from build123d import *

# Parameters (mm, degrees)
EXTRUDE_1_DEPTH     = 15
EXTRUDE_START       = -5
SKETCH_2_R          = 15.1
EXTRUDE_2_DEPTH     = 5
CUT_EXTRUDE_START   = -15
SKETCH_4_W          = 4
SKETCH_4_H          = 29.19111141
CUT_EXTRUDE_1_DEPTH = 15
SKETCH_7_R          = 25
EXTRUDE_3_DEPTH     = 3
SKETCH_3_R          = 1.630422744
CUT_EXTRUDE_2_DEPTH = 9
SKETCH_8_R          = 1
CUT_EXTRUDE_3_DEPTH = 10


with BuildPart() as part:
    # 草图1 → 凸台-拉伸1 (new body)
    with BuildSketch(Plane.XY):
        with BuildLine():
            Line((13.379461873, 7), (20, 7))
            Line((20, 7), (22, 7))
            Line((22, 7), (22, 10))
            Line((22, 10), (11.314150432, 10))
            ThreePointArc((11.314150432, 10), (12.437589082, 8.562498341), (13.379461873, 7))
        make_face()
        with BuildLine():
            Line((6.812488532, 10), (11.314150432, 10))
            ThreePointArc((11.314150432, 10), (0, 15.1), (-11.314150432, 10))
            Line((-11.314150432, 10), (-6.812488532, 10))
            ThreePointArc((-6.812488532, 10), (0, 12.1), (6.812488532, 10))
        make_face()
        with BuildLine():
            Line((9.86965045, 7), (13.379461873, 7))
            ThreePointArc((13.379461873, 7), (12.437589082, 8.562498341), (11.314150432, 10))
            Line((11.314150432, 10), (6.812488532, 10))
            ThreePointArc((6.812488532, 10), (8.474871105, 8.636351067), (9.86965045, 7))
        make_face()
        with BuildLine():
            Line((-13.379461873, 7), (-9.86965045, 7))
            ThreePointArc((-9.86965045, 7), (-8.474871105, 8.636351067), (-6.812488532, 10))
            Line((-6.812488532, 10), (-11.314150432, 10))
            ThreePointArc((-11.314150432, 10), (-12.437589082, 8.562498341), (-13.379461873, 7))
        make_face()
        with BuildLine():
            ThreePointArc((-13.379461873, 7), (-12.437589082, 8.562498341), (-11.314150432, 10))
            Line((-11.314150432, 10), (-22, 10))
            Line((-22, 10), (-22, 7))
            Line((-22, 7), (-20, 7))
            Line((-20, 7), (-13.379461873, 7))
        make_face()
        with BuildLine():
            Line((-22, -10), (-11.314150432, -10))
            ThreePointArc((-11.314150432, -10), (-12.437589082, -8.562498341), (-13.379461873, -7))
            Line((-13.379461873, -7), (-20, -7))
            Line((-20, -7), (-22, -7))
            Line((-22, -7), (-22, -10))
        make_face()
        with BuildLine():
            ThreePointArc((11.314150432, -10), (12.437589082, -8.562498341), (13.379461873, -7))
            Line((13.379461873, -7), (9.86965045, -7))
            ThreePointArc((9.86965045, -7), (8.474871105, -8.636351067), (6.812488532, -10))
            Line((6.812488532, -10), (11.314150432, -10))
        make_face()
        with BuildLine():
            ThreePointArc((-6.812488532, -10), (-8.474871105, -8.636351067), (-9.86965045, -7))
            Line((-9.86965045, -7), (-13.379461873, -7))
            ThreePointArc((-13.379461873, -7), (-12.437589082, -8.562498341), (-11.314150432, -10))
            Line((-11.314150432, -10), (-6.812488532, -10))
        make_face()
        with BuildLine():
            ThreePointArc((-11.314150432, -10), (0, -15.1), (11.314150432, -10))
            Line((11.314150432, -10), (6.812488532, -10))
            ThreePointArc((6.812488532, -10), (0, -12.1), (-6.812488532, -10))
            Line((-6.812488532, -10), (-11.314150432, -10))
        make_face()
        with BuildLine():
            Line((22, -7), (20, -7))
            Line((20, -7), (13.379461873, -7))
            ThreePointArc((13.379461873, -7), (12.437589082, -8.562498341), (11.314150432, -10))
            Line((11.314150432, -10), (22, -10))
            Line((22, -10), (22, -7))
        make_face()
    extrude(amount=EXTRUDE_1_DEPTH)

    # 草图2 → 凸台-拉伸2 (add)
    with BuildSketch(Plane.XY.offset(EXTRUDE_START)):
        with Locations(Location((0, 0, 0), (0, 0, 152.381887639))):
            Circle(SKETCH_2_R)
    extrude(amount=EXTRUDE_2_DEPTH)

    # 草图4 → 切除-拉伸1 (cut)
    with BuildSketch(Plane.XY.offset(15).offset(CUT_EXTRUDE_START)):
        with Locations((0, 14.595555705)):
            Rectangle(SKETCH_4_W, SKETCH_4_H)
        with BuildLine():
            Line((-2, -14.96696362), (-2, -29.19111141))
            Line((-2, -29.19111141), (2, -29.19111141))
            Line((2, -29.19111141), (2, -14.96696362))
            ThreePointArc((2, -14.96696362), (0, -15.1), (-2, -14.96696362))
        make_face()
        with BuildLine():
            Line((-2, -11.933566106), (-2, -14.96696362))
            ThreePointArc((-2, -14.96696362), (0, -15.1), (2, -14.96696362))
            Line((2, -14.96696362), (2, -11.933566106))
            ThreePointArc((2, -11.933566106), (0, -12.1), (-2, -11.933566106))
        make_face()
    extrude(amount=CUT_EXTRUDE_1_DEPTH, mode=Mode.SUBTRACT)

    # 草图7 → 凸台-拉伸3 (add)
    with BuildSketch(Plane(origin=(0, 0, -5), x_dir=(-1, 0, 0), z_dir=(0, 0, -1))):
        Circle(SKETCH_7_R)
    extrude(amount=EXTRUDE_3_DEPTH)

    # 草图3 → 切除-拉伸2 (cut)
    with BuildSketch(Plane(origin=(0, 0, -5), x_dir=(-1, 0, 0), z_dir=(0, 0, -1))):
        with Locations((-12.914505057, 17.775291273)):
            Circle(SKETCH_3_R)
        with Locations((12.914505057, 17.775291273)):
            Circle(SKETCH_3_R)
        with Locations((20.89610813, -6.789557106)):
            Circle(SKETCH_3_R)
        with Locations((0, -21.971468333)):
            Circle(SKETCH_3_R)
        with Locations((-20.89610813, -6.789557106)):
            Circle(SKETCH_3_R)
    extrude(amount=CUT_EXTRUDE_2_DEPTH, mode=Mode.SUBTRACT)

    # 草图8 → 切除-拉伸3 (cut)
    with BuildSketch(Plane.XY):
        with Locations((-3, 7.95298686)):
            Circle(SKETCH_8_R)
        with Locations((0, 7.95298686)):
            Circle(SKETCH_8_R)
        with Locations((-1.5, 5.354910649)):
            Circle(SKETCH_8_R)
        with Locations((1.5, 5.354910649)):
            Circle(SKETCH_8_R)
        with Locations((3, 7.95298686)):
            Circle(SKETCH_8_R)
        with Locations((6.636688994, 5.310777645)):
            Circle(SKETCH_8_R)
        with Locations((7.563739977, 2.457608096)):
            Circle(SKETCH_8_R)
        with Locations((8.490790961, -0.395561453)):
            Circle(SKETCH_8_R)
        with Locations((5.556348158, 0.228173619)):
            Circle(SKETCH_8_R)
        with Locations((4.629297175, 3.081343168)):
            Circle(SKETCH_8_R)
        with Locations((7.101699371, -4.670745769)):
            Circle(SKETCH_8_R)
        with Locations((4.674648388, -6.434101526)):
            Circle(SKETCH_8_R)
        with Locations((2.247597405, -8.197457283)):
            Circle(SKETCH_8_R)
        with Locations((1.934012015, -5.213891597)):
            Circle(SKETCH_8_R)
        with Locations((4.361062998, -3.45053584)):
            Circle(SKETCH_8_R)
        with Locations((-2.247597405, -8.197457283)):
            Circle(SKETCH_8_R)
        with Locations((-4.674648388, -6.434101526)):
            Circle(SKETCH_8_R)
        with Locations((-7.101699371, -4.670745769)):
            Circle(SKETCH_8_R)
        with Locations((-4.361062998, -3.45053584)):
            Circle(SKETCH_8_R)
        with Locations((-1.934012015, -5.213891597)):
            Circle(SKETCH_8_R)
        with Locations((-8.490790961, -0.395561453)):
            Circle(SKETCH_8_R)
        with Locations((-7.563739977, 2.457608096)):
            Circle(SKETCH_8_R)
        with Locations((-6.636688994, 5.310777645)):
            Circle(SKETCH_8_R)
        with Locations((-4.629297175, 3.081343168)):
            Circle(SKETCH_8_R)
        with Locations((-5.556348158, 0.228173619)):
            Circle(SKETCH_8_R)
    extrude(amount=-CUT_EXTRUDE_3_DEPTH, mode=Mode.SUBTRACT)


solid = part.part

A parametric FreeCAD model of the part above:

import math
import FreeCAD as App
import Part
import Sketcher
from FreeCAD import Vector

doc = App.newDocument("Part")
body = doc.addObject("PartDesign::Body", "Body")
body.AllowCompound = True

sketch1 = doc.addObject("Sketcher::SketchObject", "Sketch")
body.addObject(sketch1)
sketch1.AttachmentSupport = (doc.XY_Plane, [""])
sketch1.MapMode = "FlatFace"
sketch1.addGeometry(Part.LineSegment(Vector(9.9, 7, 0), Vector(22, 7, 0)), False)
sketch1.addGeometry(Part.LineSegment(Vector(22, 7, 0), Vector(22, 10, 0)), False)
sketch1.addGeometry(Part.LineSegment(Vector(22, 10, 0), Vector(11.3, 10, 0)), False)
sketch1.addGeometry(Part.ArcOfCircle(Part.Circle(Vector(0, 0, 0), Vector(0, 0, 1), 15.1), math.radians(41), math.radians(139)), False)
sketch1.addGeometry(Part.LineSegment(Vector(-11.3, 10, 0), Vector(-22, 10, 0)), False)
sketch1.addGeometry(Part.LineSegment(Vector(-22, 10, 0), Vector(-22, 7, 0)), False)
sketch1.addGeometry(Part.LineSegment(Vector(-22, 7, 0), Vector(-9.9, 7, 0)), False)
sketch1.addGeometry(Part.ArcOfCircle(Part.Circle(Vector(0, 0, 0), Vector(0, 0, 1), 12.1), math.radians(124), math.radians(145)), False)
sketch1.addGeometry(Part.ArcOfCircle(Part.Circle(Vector(0, 0, 0), Vector(0, 0, 1), 12.1), math.radians(56), math.radians(124)), False)
sketch1.addGeometry(Part.ArcOfCircle(Part.Circle(Vector(0, 0, 0), Vector(0, 0, 1), 12.1), math.radians(35), math.radians(56)), False)
sketch1.addGeometry(Part.LineSegment(Vector(-22, -7, 0), Vector(-22, -10, 0)), False)
sketch1.addGeometry(Part.LineSegment(Vector(-22, -10, 0), Vector(-11.3, -10, 0)), False)
sketch1.addGeometry(Part.ArcOfCircle(Part.Circle(Vector(0, 0, 0), Vector(0, 0, 1), 15.1), math.radians(-139), math.radians(-41)), False)
sketch1.addGeometry(Part.LineSegment(Vector(11.3, -10, 0), Vector(22, -10, 0)), False)
sketch1.addGeometry(Part.LineSegment(Vector(22, -10, 0), Vector(22, -7, 0)), False)
sketch1.addGeometry(Part.LineSegment(Vector(22, -7, 0), Vector(9.9, -7, 0)), False)
sketch1.addGeometry(Part.ArcOfCircle(Part.Circle(Vector(0, 0, 0), Vector(0, 0, 1), 12.1), math.radians(-56), math.radians(-35)), False)
sketch1.addGeometry(Part.ArcOfCircle(Part.Circle(Vector(0, 0, 0), Vector(0, 0, 1), 12.1), math.radians(-124), math.radians(-56)), False)
sketch1.addGeometry(Part.ArcOfCircle(Part.Circle(Vector(0, 0, 0), Vector(0, 0, 1), 12.1), math.radians(-145), math.radians(-124)), False)
sketch1.addGeometry(Part.LineSegment(Vector(-9.9, -7, 0), Vector(-22, -7, 0)), False)
sketch1.addConstraint(Sketcher.Constraint("Coincident", 0, 2, 1, 1))
sketch1.addConstraint(Sketcher.Constraint("Coincident", 1, 2, 2, 1))
sketch1.addConstraint(Sketcher.Constraint("Coincident", 2, 2, 3, 1))
sketch1.addConstraint(Sketcher.Constraint("Coincident", 3, 2, 4, 1))
sketch1.addConstraint(Sketcher.Constraint("Coincident", 4, 2, 5, 1))
sketch1.addConstraint(Sketcher.Constraint("Coincident", 5, 2, 6, 1))
sketch1.addConstraint(Sketcher.Constraint("Coincident", 6, 2, 7, 2))
sketch1.addConstraint(Sketcher.Constraint("Tangent", 7, 1, 8, 2))
sketch1.addConstraint(Sketcher.Constraint("Tangent", 8, 1, 9, 2))
sketch1.addConstraint(Sketcher.Constraint("Coincident", 9, 1, 0, 1))
sketch1.addConstraint(Sketcher.Constraint("Coincident", 10, 2, 11, 1))
sketch1.addConstraint(Sketcher.Constraint("Coincident", 11, 2, 12, 1))
sketch1.addConstraint(Sketcher.Constraint("Coincident", 12, 2, 13, 1))
sketch1.addConstraint(Sketcher.Constraint("Coincident", 13, 2, 14, 1))
sketch1.addConstraint(Sketcher.Constraint("Coincident", 14, 2, 15, 1))
sketch1.addConstraint(Sketcher.Constraint("Coincident", 15, 2, 16, 2))
sketch1.addConstraint(Sketcher.Constraint("Tangent", 16, 1, 17, 2))
sketch1.addConstraint(Sketcher.Constraint("Tangent", 17, 1, 18, 2))
sketch1.addConstraint(Sketcher.Constraint("Coincident", 18, 1, 19, 1))
sketch1.addConstraint(Sketcher.Constraint("Coincident", 19, 2, 10, 1))
sketch1.addConstraint(Sketcher.Constraint("Horizontal", 0))
sketch1.addConstraint(Sketcher.Constraint("Vertical", 1))
sketch1.addConstraint(Sketcher.Constraint("Horizontal", 2))
sketch1.addConstraint(Sketcher.Constraint("Horizontal", 4))
sketch1.addConstraint(Sketcher.Constraint("Vertical", 5))
sketch1.addConstraint(Sketcher.Constraint("Horizontal", 6))
sketch1.addConstraint(Sketcher.Constraint("Vertical", 10))
sketch1.addConstraint(Sketcher.Constraint("Horizontal", 11))
sketch1.addConstraint(Sketcher.Constraint("Horizontal", 13))
sketch1.addConstraint(Sketcher.Constraint("Vertical", 14))
sketch1.addConstraint(Sketcher.Constraint("Horizontal", 15))
sketch1.addConstraint(Sketcher.Constraint("Horizontal", 19))
sketch1.addConstraint(Sketcher.Constraint("Coincident", 3, 3, -1, 1))
sketch1.addConstraint(Sketcher.Constraint("Coincident", 7, 3, -1, 1))
sketch1.addConstraint(Sketcher.Constraint("Coincident", 9, 3, -1, 1))
sketch1.addConstraint(Sketcher.Constraint("Coincident", 12, 3, -1, 1))
sketch1.addConstraint(Sketcher.Constraint("Coincident", 16, 3, -1, 1))
sketch1.addConstraint(Sketcher.Constraint("Coincident", 18, 3, -1, 1))
sketch1.addConstraint(Sketcher.Constraint("Equal", 3, 12))
sketch1.addConstraint(Sketcher.Constraint("Equal", 9, 16))
sketch1.addConstraint(Sketcher.Constraint("Symmetric", 1, 2, 10, 2, -1, 1))
sketch1.addConstraint(Sketcher.Constraint("Symmetric", 4, 2, 13, 2, -1, 1))
sketch1.addConstraint(Sketcher.Constraint("Symmetric", 1, 2, 4, 2, -2))
sketch1.addConstraint(Sketcher.Constraint("Horizontal", 0, 2, 5, 2))
sketch1.addConstraint(Sketcher.Constraint("Horizontal", 4, 2, 7, 1))
sketch1.addConstraint(Sketcher.Constraint("Horizontal", 7, 1, 8, 1))
sketch1.addConstraint(Sketcher.Constraint("Horizontal", 13, 2, 16, 1))
sketch1.addConstraint(Sketcher.Constraint("Horizontal", 16, 1, 17, 1))
sketch1.addConstraint(Sketcher.Constraint("Horizontal", 15, 2, 18, 1))
sketch1.addConstraint(Sketcher.Constraint("Vertical", 9, 1, 15, 2))
sketch1.addConstraint(Sketcher.Constraint("Radius", 3, 15.1))
sketch1.addConstraint(Sketcher.Constraint("Radius", 7, 12.1))
sketch1.addConstraint(Sketcher.Constraint("DistanceY", 1, 1, 1, 2, 3.0))
sketch1.addConstraint(Sketcher.Constraint("DistanceX", -1, 1, 0, 2, 22.0))
sketch1.addConstraint(Sketcher.Constraint("DistanceY", -1, 1, 0, 2, 7.0))
pad1 = doc.addObject("PartDesign::Pad", "Pad")
body.addObject(pad1)
pad1.Profile = sketch1
pad1.Length = 15

sketch2 = doc.addObject("Sketcher::SketchObject", "Sketch001")
body.addObject(sketch2)
sketch2.AttachmentSupport = (doc.XY_Plane, [""])
sketch2.MapMode = "FlatFace"
sketch2.AttachmentOffset = App.Placement(Vector(0, 0, -5), App.Rotation())
sketch2.addGeometry(Part.Circle(Vector(0, 0, 0), Vector(0, 0, 1), 15), False)
sketch2.addConstraint(Sketcher.Constraint("Coincident", 0, 3, -1, 1))
sketch2.addConstraint(Sketcher.Constraint("Diameter", 0, 30.2))
pad2 = doc.addObject("PartDesign::Pad", "Pad001")
body.addObject(pad2)
pad2.Profile = sketch2
pad2.Length = 5

sketch3 = doc.addObject("Sketcher::SketchObject", "Sketch002")
body.addObject(sketch3)
sketch3.AttachmentSupport = (doc.XY_Plane, [""])
sketch3.MapMode = "FlatFace"
sketch3.addGeometry(Part.LineSegment(Vector(-2, 29.2, 0), Vector(-2, 0, 0)), False)
sketch3.addGeometry(Part.LineSegment(Vector(-2, 0, 0), Vector(2, 0, 0)), False)
sketch3.addGeometry(Part.LineSegment(Vector(2, 0, 0), Vector(2, 29.2, 0)), False)
sketch3.addGeometry(Part.LineSegment(Vector(2, 29.2, 0), Vector(-2, 29.2, 0)), False)
sketch3.addGeometry(Part.LineSegment(Vector(-2, -29.2, 0), Vector(2, -29.2, 0)), False)
sketch3.addGeometry(Part.LineSegment(Vector(2, -29.2, 0), Vector(2, -11.9, 0)), False)
sketch3.addGeometry(Part.ArcOfCircle(Part.Circle(Vector(0, 0, 0), Vector(0, 0, 1), 12.1), math.radians(-99.51), math.radians(-80.49)), False)
sketch3.addGeometry(Part.LineSegment(Vector(-2, -11.9, 0), Vector(-2, -29.2, 0)), False)
sketch3.addConstraint(Sketcher.Constraint("Coincident", 0, 2, 1, 1))
sketch3.addConstraint(Sketcher.Constraint("Coincident", 1, 2, 2, 1))
sketch3.addConstraint(Sketcher.Constraint("Coincident", 2, 2, 3, 1))
sketch3.addConstraint(Sketcher.Constraint("Coincident", 3, 2, 0, 1))
sketch3.addConstraint(Sketcher.Constraint("Coincident", 4, 2, 5, 1))
sketch3.addConstraint(Sketcher.Constraint("Coincident", 5, 2, 6, 2))
sketch3.addConstraint(Sketcher.Constraint("Coincident", 6, 1, 7, 1))
sketch3.addConstraint(Sketcher.Constraint("Coincident", 7, 2, 4, 1))
sketch3.addConstraint(Sketcher.Constraint("Vertical", 0))
sketch3.addConstraint(Sketcher.Constraint("Horizontal", 1))
sketch3.addConstraint(Sketcher.Constraint("Vertical", 2))
sketch3.addConstraint(Sketcher.Constraint("Horizontal", 3))
sketch3.addConstraint(Sketcher.Constraint("Horizontal", 4))
sketch3.addConstraint(Sketcher.Constraint("Vertical", 5))
sketch3.addConstraint(Sketcher.Constraint("Vertical", 7))
sketch3.addConstraint(Sketcher.Constraint("Coincident", 6, 3, -1, 1))
sketch3.addConstraint(Sketcher.Constraint("Symmetric", 0, 2, 1, 2, -1, 1))
sketch3.addConstraint(Sketcher.Constraint("Symmetric", 3, 2, 4, 2, -1, 1))
sketch3.addConstraint(Sketcher.Constraint("Horizontal", 5, 2, 6, 1))
sketch3.addConstraint(Sketcher.Constraint("Radius", 6, 12.1))
sketch3.addConstraint(Sketcher.Constraint("DistanceX", 1, 1, 1, 2, 4.0))
sketch3.addConstraint(Sketcher.Constraint("DistanceY", 0, 2, 0, 1, 29.191111))
pocket1 = doc.addObject("PartDesign::Pocket", "Pocket")
body.addObject(pocket1)
pocket1.Profile = sketch3
pocket1.Length = 15
pocket1.Reversed = True

sketch4 = doc.addObject("Sketcher::SketchObject", "Sketch003")
body.addObject(sketch4)
sketch4.AttachmentSupport = (doc.XY_Plane, [""])
sketch4.MapMode = "FlatFace"
sketch4.AttachmentOffset = App.Placement(Vector(0, 0, -5), App.Rotation())
sketch4.addGeometry(Part.Circle(Vector(0, 0, 0), Vector(0, 0, 1), 25), False)
sketch4.addConstraint(Sketcher.Constraint("Coincident", 0, 3, -1, 1))
sketch4.addConstraint(Sketcher.Constraint("Diameter", 0, 50.0))
pad3 = doc.addObject("PartDesign::Pad", "Pad002")
body.addObject(pad3)
pad3.Profile = sketch4
pad3.Length = 3
pad3.Reversed = True

sketch5 = doc.addObject("Sketcher::SketchObject", "Sketch004")
body.addObject(sketch5)
sketch5.AttachmentSupport = (doc.XY_Plane, [""])
sketch5.MapMode = "FlatFace"
sketch5.AttachmentOffset = App.Placement(Vector(0, 0, -5), App.Rotation())
sketch5.addGeometry(Part.Circle(Vector(12.9, 17.8, 0), Vector(0, 0, 1), 1.6), False)
sketch5.addGeometry(Part.Circle(Vector(-12.9, 17.8, 0), Vector(0, 0, 1), 1.6), False)
sketch5.addGeometry(Part.Circle(Vector(-20.9, -6.8, 0), Vector(0, 0, 1), 1.6), False)
sketch5.addGeometry(Part.Circle(Vector(0, -22, 0), Vector(0, 0, 1), 1.6), False)
sketch5.addGeometry(Part.Circle(Vector(20.9, -6.8, 0), Vector(0, 0, 1), 1.6), False)
sketch5.addConstraint(Sketcher.Constraint("Equal", 0, 1))
sketch5.addConstraint(Sketcher.Constraint("Equal", 1, 2))
sketch5.addConstraint(Sketcher.Constraint("Equal", 2, 3))
sketch5.addConstraint(Sketcher.Constraint("Equal", 3, 4))
sketch5.addConstraint(Sketcher.Constraint("Symmetric", 0, 3, 1, 3, -2))
sketch5.addConstraint(Sketcher.Constraint("Symmetric", 2, 3, 4, 3, -2))
sketch5.addConstraint(Sketcher.Constraint("PointOnObject", 3, 3, -2))
sketch5.addConstraint(Sketcher.Constraint("Diameter", 0, 3.260845))
sketch5.addConstraint(Sketcher.Constraint("DistanceY", -1, 1, 0, 3, 17.775291))
sketch5.addConstraint(Sketcher.Constraint("DistanceX", 2, 3, -1, 1, 20.896108))
sketch5.addConstraint(Sketcher.Constraint("DistanceY", 3, 3, -1, 1, 21.971468))
sketch5.addConstraint(Sketcher.Constraint("DistanceX", 1, 3, 0, 3, 25.82901))
sketch5.addConstraint(Sketcher.Constraint("DistanceY", 2, 3, 1, 3, 24.564848))
pocket2 = doc.addObject("PartDesign::Pocket", "Pocket001")
body.addObject(pocket2)
pocket2.Profile = sketch5
pocket2.Length = 9

sketch6 = doc.addObject("Sketcher::SketchObject", "Sketch005")
body.addObject(sketch6)
sketch6.AttachmentSupport = (doc.XY_Plane, [""])
sketch6.MapMode = "FlatFace"
sketch6.addGeometry(Part.Circle(Vector(-3, 8, 0), Vector(0, 0, 1), 1), False)
sketch6.addGeometry(Part.Circle(Vector(0, 8, 0), Vector(0, 0, 1), 1), False)
sketch6.addGeometry(Part.Circle(Vector(-1.5, 5.4, 0), Vector(0, 0, 1), 1), False)
sketch6.addGeometry(Part.Circle(Vector(1.5, 5.4, 0), Vector(0, 0, 1), 1), False)
sketch6.addGeometry(Part.Circle(Vector(3, 8, 0), Vector(0, 0, 1), 1), False)
sketch6.addGeometry(Part.Circle(Vector(6.6, 5.3, 0), Vector(0, 0, 1), 1), False)
sketch6.addGeometry(Part.Circle(Vector(7.6, 2.5, 0), Vector(0, 0, 1), 1), False)
sketch6.addGeometry(Part.Circle(Vector(8.5, -0.4, 0), Vector(0, 0, 1), 1), False)
sketch6.addGeometry(Part.Circle(Vector(5.6, 0.2, 0), Vector(0, 0, 1), 1), False)
sketch6.addGeometry(Part.Circle(Vector(4.6, 3.1, 0), Vector(0, 0, 1), 1), False)
sketch6.addGeometry(Part.Circle(Vector(7.1, -4.7, 0), Vector(0, 0, 1), 1), False)
sketch6.addGeometry(Part.Circle(Vector(4.7, -6.4, 0), Vector(0, 0, 1), 1), False)
sketch6.addGeometry(Part.Circle(Vector(2.2, -8.2, 0), Vector(0, 0, 1), 1), False)
sketch6.addGeometry(Part.Circle(Vector(1.9, -5.2, 0), Vector(0, 0, 1), 1), False)
sketch6.addGeometry(Part.Circle(Vector(4.4, -3.5, 0), Vector(0, 0, 1), 1), False)
sketch6.addGeometry(Part.Circle(Vector(-2.2, -8.2, 0), Vector(0, 0, 1), 1), False)
sketch6.addGeometry(Part.Circle(Vector(-4.7, -6.4, 0), Vector(0, 0, 1), 1), False)
sketch6.addGeometry(Part.Circle(Vector(-7.1, -4.7, 0), Vector(0, 0, 1), 1), False)
sketch6.addGeometry(Part.Circle(Vector(-4.4, -3.5, 0), Vector(0, 0, 1), 1), False)
sketch6.addGeometry(Part.Circle(Vector(-1.9, -5.2, 0), Vector(0, 0, 1), 1), False)
sketch6.addGeometry(Part.Circle(Vector(-8.5, -0.4, 0), Vector(0, 0, 1), 1), False)
sketch6.addGeometry(Part.Circle(Vector(-7.6, 2.5, 0), Vector(0, 0, 1), 1), False)
sketch6.addGeometry(Part.Circle(Vector(-6.6, 5.3, 0), Vector(0, 0, 1), 1), False)
sketch6.addGeometry(Part.Circle(Vector(-4.6, 3.1, 0), Vector(0, 0, 1), 1), False)
sketch6.addGeometry(Part.Circle(Vector(-5.6, 0.2, 0), Vector(0, 0, 1), 1), False)
sketch6.addConstraint(Sketcher.Constraint("Equal", 0, 1))
sketch6.addConstraint(Sketcher.Constraint("Equal", 1, 2))
sketch6.addConstraint(Sketcher.Constraint("Equal", 2, 3))
sketch6.addConstraint(Sketcher.Constraint("Equal", 3, 4))
sketch6.addConstraint(Sketcher.Constraint("Equal", 4, 5))
sketch6.addConstraint(Sketcher.Constraint("Equal", 5, 6))
sketch6.addConstraint(Sketcher.Constraint("Equal", 6, 7))
sketch6.addConstraint(Sketcher.Constraint("Equal", 7, 8))
sketch6.addConstraint(Sketcher.Constraint("Equal", 8, 9))
sketch6.addConstraint(Sketcher.Constraint("Equal", 9, 10))
sketch6.addConstraint(Sketcher.Constraint("Equal", 10, 11))
sketch6.addConstraint(Sketcher.Constraint("Equal", 11, 12))
sketch6.addConstraint(Sketcher.Constraint("Equal", 12, 13))
sketch6.addConstraint(Sketcher.Constraint("Equal", 13, 14))
sketch6.addConstraint(Sketcher.Constraint("Equal", 14, 15))
sketch6.addConstraint(Sketcher.Constraint("Equal", 15, 16))
sketch6.addConstraint(Sketcher.Constraint("Equal", 16, 17))
sketch6.addConstraint(Sketcher.Constraint("Equal", 17, 18))
sketch6.addConstraint(Sketcher.Constraint("Equal", 18, 19))
sketch6.addConstraint(Sketcher.Constraint("Equal", 19, 20))
sketch6.addConstraint(Sketcher.Constraint("Equal", 20, 21))
sketch6.addConstraint(Sketcher.Constraint("Equal", 21, 22))
sketch6.addConstraint(Sketcher.Constraint("Equal", 22, 23))
sketch6.addConstraint(Sketcher.Constraint("Equal", 23, 24))
sketch6.addConstraint(Sketcher.Constraint("Symmetric", 2, 3, 3, 3, -2))
sketch6.addConstraint(Sketcher.Constraint("Symmetric", 0, 3, 4, 3, -2))
sketch6.addConstraint(Sketcher.Constraint("Symmetric", 12, 3, 15, 3, -2))
sketch6.addConstraint(Sketcher.Constraint("Symmetric", 11, 3, 16, 3, -2))
sketch6.addConstraint(Sketcher.Constraint("Symmetric", 10, 3, 17, 3, -2))
sketch6.addConstraint(Sketcher.Constraint("Symmetric", 14, 3, 18, 3, -2))
sketch6.addConstraint(Sketcher.Constraint("Symmetric", 13, 3, 19, 3, -2))
sketch6.addConstraint(Sketcher.Constraint("Symmetric", 7, 3, 20, 3, -2))
sketch6.addConstraint(Sketcher.Constraint("Symmetric", 6, 3, 21, 3, -2))
sketch6.addConstraint(Sketcher.Constraint("Symmetric", 5, 3, 22, 3, -2))
sketch6.addConstraint(Sketcher.Constraint("Symmetric", 9, 3, 23, 3, -2))
sketch6.addConstraint(Sketcher.Constraint("Symmetric", 8, 3, 24, 3, -2))
sketch6.addConstraint(Sketcher.Constraint("PointOnObject", 1, 3, -2))
sketch6.addConstraint(Sketcher.Constraint("Horizontal", 0, 3, 1, 3))
sketch6.addConstraint(Sketcher.Constraint("Diameter", 0, 2.0))
sketch6.addConstraint(Sketcher.Constraint("DistanceX", 0, 3, -1, 1, 3.0))
sketch6.addConstraint(Sketcher.Constraint("DistanceX", 2, 3, 3, 3, 3.0))
sketch6.addConstraint(Sketcher.Constraint("DistanceX", -1, 1, 10, 3, 7.101699))
sketch6.addConstraint(Sketcher.Constraint("DistanceY", 11, 3, -1, 1, 6.434102))
sketch6.addConstraint(Sketcher.Constraint("DistanceX", 5, 3, 7, 3, 1.854102))
sketch6.addConstraint(Sketcher.Constraint("DistanceX", 11, 3, 8, 3, 0.8817))
sketch6.addConstraint(Sketcher.Constraint("DistanceX", 12, 3, 10, 3, 4.854102))
sketch6.addConstraint(Sketcher.Constraint("DistanceX", 12, 3, 9, 3, 2.3817))
sketch6.addConstraint(Sketcher.Constraint("DistanceY", 12, 3, 9, 3, 11.2788))
sketch6.addConstraint(Sketcher.Constraint("DistanceY", -1, 1, 2, 3, 5.354911))
sketch6.addConstraint(Sketcher.Constraint("DistanceX", -1, 1, 5, 3, 6.636689))
sketch6.addConstraint(Sketcher.Constraint("DistanceX", -1, 1, 6, 3, 7.56374))
sketch6.addConstraint(Sketcher.Constraint("DistanceY", -1, 1, 6, 3, 2.457608))
sketch6.addConstraint(Sketcher.Constraint("DistanceY", 7, 3, -1, 1, 0.395561))
sketch6.addConstraint(Sketcher.Constraint("DistanceX", -1, 1, 8, 3, 5.556348))
sketch6.addConstraint(Sketcher.Constraint("DistanceY", 13, 3, -1, 1, 5.213892))
sketch6.addConstraint(Sketcher.Constraint("DistanceY", 5, 3, 4, 3, 2.642209))
sketch6.addConstraint(Sketcher.Constraint("DistanceY", 6, 3, 5, 3, 2.85317))
sketch6.addConstraint(Sketcher.Constraint("DistanceY", 8, 3, 9, 3, 2.85317))
sketch6.addConstraint(Sketcher.Constraint("DistanceY", 10, 3, 8, 3, 4.898919))
sketch6.addConstraint(Sketcher.Constraint("DistanceX", 13, 3, 7, 3, 6.556779))
sketch6.addConstraint(Sketcher.Constraint("DistanceX", 13, 3, 14, 3, 2.427051))
sketch6.addConstraint(Sketcher.Constraint("DistanceY", 10, 3, 14, 3, 1.22021))
sketch6.addConstraint(Sketcher.Constraint("DistanceY", -1, 1, 8, 3, 0.228174))
pocket3 = doc.addObject("PartDesign::Pocket", "Pocket002")
body.addObject(pocket3)
pocket3.Profile = sketch6
pocket3.Length = 10

doc.recompute()
